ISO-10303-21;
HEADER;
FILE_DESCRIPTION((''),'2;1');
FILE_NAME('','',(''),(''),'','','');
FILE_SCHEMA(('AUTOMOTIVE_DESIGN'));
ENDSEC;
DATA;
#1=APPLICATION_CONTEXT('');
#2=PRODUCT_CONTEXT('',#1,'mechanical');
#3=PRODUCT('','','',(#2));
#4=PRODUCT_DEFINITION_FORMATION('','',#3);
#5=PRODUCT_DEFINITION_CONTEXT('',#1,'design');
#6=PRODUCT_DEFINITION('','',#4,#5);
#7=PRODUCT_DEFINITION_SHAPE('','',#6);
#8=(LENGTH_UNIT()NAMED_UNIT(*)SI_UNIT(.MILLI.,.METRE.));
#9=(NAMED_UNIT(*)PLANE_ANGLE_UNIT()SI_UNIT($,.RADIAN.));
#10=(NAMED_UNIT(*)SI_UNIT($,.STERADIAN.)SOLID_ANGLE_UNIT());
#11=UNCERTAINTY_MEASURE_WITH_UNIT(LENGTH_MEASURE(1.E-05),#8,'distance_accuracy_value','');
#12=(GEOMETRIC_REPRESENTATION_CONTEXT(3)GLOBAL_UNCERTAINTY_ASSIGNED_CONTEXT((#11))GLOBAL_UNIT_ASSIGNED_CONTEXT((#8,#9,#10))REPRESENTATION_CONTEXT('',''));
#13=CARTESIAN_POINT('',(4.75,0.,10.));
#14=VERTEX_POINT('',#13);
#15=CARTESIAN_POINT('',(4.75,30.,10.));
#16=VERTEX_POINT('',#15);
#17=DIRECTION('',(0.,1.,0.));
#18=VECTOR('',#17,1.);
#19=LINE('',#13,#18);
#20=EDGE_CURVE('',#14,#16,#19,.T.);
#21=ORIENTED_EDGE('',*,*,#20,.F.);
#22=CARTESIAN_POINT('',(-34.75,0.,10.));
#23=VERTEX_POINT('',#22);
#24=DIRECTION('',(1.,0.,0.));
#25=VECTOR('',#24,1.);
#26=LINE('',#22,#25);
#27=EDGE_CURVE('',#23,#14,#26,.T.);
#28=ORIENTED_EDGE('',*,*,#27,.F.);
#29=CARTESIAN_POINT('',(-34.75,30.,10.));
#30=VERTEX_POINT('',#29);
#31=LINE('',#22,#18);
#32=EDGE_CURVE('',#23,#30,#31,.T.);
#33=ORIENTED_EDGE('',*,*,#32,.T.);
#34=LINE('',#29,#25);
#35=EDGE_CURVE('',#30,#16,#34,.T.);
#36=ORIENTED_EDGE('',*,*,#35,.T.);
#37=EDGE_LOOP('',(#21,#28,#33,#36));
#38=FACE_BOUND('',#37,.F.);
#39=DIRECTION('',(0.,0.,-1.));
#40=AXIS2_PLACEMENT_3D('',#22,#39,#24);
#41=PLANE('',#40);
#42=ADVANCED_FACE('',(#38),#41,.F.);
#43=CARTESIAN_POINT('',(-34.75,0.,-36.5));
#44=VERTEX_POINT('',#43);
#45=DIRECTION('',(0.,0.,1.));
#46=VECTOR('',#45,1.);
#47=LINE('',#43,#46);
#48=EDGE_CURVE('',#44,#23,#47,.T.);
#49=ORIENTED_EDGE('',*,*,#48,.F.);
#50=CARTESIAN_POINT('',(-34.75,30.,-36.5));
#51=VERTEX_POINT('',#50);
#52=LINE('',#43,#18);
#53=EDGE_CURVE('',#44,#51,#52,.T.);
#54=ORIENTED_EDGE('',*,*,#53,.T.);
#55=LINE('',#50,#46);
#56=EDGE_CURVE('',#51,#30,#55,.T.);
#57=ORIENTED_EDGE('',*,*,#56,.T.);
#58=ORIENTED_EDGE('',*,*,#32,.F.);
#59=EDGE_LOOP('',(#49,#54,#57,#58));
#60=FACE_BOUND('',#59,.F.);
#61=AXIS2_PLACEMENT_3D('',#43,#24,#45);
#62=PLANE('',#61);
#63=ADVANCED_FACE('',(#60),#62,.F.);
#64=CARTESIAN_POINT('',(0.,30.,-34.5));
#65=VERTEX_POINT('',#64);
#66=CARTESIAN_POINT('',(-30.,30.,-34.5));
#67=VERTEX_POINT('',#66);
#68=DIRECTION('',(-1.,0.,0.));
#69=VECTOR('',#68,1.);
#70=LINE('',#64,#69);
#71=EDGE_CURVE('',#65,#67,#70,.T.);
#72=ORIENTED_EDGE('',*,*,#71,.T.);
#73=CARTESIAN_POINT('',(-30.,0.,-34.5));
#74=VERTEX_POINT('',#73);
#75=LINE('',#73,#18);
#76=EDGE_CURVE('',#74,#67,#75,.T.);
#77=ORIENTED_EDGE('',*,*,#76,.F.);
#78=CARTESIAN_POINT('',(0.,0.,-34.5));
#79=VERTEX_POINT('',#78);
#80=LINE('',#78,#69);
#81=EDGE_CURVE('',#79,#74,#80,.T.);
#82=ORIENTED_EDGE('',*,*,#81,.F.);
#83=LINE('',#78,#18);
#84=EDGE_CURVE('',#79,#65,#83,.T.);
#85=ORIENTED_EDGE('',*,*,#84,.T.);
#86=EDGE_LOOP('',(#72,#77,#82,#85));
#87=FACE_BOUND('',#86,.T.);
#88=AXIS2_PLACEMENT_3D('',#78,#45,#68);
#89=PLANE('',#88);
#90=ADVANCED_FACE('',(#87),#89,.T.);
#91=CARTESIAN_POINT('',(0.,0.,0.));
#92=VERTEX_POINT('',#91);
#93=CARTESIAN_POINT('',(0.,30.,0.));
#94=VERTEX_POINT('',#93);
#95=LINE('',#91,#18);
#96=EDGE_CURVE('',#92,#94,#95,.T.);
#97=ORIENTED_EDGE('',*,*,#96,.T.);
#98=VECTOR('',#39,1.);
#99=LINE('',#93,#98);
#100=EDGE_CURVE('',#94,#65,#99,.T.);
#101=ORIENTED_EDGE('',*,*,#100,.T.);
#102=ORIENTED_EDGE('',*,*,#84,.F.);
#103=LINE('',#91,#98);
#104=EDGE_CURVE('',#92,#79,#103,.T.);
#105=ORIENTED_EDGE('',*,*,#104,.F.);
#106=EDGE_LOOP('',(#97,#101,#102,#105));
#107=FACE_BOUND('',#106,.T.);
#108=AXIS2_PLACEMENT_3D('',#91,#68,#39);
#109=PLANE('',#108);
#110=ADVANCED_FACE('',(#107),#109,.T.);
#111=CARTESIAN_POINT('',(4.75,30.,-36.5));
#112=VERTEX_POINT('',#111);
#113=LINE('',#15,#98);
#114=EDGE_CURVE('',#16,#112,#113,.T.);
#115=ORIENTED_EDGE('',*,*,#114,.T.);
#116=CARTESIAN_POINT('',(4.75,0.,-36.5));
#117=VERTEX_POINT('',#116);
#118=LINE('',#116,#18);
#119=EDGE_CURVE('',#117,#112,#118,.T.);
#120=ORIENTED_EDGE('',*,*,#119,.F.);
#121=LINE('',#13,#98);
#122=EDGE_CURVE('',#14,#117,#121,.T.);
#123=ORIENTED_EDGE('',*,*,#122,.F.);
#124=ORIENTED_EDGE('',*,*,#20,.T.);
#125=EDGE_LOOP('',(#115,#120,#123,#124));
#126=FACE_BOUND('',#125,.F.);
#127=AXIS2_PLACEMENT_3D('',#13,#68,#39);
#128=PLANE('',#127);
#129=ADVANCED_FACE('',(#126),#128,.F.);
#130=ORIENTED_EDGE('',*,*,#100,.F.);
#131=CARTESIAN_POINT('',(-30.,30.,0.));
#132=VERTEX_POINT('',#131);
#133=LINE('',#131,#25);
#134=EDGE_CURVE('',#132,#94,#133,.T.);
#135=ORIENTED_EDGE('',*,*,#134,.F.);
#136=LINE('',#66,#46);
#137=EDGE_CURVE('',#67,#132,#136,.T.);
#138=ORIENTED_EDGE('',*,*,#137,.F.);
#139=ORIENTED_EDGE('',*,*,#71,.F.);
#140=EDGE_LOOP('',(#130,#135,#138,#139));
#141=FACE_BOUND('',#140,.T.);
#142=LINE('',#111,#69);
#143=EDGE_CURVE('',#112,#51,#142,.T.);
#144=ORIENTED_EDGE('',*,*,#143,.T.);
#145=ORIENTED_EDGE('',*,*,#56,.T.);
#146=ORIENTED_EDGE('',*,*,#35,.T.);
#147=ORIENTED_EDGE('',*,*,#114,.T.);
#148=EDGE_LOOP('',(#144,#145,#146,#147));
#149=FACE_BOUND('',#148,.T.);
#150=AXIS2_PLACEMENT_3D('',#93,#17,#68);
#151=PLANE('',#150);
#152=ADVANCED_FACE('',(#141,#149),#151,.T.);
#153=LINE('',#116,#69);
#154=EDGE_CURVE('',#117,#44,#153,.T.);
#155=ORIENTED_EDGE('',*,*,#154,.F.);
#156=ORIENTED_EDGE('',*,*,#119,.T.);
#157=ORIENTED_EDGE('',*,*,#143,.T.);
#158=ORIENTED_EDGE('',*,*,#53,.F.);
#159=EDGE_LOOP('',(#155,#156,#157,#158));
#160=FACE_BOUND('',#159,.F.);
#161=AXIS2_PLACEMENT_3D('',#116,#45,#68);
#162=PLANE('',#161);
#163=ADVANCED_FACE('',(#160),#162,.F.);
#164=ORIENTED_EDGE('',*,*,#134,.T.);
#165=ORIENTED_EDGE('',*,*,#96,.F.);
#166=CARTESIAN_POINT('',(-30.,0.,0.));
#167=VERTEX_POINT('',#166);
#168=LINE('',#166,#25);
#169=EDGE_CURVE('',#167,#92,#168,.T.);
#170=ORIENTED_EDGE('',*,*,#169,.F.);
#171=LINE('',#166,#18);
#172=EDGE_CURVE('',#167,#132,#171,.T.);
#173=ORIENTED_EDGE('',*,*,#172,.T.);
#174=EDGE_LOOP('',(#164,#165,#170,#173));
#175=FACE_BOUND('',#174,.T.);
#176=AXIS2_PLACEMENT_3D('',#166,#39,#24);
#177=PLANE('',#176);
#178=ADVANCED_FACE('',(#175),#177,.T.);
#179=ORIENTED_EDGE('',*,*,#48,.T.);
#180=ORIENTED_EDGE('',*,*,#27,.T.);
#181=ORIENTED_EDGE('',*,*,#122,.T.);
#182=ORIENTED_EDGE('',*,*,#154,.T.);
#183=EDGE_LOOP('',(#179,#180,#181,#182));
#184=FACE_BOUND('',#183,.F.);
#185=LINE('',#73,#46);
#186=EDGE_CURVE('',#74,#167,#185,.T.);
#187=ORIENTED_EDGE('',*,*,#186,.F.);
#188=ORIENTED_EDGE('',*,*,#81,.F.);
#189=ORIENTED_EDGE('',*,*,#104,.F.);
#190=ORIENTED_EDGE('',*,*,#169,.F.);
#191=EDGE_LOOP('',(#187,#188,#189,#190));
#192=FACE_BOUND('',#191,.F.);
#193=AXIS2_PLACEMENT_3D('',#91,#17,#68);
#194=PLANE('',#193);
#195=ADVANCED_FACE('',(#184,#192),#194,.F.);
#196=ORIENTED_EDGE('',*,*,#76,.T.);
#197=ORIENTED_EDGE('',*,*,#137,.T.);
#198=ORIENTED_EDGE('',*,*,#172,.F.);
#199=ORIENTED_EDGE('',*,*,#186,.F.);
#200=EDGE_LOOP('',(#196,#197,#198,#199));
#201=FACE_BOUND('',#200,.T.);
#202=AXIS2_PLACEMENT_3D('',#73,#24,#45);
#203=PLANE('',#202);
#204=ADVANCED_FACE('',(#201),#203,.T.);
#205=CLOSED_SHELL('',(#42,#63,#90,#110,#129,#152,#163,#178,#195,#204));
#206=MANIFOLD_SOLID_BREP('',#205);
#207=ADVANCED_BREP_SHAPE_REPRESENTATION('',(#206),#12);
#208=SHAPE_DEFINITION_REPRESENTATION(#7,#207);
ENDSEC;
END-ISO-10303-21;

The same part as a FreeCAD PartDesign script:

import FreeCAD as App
import Part
import Sketcher
from FreeCAD import Vector


def add_polygon(sketch, points):
    """Adds a closed chain of lines whose ends are joined by coincident constraints."""
    first, n = sketch.GeometryCount, len(points)
    for a, b in zip(points, points[1:] + points[:1]):
        sketch.addGeometry(Part.LineSegment(App.Vector(*a, 0), App.Vector(*b, 0)), False)
    for i in range(n):
        sketch.addConstraint(Sketcher.Constraint("Coincident", first + i, 2, first + (i + 1) % n, 1))

doc = App.newDocument("Part")
body = doc.addObject("PartDesign::Body", "Body")

sketch1 = body.newObject("Sketcher::SketchObject", "Sketch")
sketch1.AttachmentSupport = (doc.getObject("XZ_Plane"), [""])
sketch1.MapMode = "FlatFace"
add_polygon(sketch1, [(-34.75, -36.5), (-34.75, 10), (4.75, 10), (4.75, -36.5)])
add_polygon(sketch1, [(0, 0), (-30, 0), (-30, -34.5), (0, -34.5)])
sketch1.addConstraint([
    Sketcher.Constraint("Vertical", 0),
    Sketcher.Constraint("Horizontal", 1),
    Sketcher.Constraint("Vertical", 2),
    Sketcher.Constraint("Horizontal", 3),
    Sketcher.Constraint("Horizontal", 4),
    Sketcher.Constraint("Vertical", 5),
    Sketcher.Constraint("Horizontal", 6),
    Sketcher.Constraint("Vertical", 7),
    Sketcher.Constraint("Coincident", 7, 2, -1, 1),
    Sketcher.Constraint("DistanceX", 4, 2, 4, 1, 30.0),
    Sketcher.Constraint("DistanceY", 5, 2, 5, 1, 34.5),
    Sketcher.Constraint("DistanceY", -1, 1, 0, 2, 10.0),
    Sketcher.Constraint("DistanceY", 3, 2, 5, 2, 2.0),
    Sketcher.Constraint("DistanceX", -1, 1, 1, 2, 4.75),
    Sketcher.Constraint("DistanceX", 0, 2, 4, 2, 4.75),
])
pad1 = body.newObject("PartDesign::Pad", "Pad")
pad1.Profile = sketch1
pad1.Length = 30
pad1.Reversed = True

doc.recompute()
